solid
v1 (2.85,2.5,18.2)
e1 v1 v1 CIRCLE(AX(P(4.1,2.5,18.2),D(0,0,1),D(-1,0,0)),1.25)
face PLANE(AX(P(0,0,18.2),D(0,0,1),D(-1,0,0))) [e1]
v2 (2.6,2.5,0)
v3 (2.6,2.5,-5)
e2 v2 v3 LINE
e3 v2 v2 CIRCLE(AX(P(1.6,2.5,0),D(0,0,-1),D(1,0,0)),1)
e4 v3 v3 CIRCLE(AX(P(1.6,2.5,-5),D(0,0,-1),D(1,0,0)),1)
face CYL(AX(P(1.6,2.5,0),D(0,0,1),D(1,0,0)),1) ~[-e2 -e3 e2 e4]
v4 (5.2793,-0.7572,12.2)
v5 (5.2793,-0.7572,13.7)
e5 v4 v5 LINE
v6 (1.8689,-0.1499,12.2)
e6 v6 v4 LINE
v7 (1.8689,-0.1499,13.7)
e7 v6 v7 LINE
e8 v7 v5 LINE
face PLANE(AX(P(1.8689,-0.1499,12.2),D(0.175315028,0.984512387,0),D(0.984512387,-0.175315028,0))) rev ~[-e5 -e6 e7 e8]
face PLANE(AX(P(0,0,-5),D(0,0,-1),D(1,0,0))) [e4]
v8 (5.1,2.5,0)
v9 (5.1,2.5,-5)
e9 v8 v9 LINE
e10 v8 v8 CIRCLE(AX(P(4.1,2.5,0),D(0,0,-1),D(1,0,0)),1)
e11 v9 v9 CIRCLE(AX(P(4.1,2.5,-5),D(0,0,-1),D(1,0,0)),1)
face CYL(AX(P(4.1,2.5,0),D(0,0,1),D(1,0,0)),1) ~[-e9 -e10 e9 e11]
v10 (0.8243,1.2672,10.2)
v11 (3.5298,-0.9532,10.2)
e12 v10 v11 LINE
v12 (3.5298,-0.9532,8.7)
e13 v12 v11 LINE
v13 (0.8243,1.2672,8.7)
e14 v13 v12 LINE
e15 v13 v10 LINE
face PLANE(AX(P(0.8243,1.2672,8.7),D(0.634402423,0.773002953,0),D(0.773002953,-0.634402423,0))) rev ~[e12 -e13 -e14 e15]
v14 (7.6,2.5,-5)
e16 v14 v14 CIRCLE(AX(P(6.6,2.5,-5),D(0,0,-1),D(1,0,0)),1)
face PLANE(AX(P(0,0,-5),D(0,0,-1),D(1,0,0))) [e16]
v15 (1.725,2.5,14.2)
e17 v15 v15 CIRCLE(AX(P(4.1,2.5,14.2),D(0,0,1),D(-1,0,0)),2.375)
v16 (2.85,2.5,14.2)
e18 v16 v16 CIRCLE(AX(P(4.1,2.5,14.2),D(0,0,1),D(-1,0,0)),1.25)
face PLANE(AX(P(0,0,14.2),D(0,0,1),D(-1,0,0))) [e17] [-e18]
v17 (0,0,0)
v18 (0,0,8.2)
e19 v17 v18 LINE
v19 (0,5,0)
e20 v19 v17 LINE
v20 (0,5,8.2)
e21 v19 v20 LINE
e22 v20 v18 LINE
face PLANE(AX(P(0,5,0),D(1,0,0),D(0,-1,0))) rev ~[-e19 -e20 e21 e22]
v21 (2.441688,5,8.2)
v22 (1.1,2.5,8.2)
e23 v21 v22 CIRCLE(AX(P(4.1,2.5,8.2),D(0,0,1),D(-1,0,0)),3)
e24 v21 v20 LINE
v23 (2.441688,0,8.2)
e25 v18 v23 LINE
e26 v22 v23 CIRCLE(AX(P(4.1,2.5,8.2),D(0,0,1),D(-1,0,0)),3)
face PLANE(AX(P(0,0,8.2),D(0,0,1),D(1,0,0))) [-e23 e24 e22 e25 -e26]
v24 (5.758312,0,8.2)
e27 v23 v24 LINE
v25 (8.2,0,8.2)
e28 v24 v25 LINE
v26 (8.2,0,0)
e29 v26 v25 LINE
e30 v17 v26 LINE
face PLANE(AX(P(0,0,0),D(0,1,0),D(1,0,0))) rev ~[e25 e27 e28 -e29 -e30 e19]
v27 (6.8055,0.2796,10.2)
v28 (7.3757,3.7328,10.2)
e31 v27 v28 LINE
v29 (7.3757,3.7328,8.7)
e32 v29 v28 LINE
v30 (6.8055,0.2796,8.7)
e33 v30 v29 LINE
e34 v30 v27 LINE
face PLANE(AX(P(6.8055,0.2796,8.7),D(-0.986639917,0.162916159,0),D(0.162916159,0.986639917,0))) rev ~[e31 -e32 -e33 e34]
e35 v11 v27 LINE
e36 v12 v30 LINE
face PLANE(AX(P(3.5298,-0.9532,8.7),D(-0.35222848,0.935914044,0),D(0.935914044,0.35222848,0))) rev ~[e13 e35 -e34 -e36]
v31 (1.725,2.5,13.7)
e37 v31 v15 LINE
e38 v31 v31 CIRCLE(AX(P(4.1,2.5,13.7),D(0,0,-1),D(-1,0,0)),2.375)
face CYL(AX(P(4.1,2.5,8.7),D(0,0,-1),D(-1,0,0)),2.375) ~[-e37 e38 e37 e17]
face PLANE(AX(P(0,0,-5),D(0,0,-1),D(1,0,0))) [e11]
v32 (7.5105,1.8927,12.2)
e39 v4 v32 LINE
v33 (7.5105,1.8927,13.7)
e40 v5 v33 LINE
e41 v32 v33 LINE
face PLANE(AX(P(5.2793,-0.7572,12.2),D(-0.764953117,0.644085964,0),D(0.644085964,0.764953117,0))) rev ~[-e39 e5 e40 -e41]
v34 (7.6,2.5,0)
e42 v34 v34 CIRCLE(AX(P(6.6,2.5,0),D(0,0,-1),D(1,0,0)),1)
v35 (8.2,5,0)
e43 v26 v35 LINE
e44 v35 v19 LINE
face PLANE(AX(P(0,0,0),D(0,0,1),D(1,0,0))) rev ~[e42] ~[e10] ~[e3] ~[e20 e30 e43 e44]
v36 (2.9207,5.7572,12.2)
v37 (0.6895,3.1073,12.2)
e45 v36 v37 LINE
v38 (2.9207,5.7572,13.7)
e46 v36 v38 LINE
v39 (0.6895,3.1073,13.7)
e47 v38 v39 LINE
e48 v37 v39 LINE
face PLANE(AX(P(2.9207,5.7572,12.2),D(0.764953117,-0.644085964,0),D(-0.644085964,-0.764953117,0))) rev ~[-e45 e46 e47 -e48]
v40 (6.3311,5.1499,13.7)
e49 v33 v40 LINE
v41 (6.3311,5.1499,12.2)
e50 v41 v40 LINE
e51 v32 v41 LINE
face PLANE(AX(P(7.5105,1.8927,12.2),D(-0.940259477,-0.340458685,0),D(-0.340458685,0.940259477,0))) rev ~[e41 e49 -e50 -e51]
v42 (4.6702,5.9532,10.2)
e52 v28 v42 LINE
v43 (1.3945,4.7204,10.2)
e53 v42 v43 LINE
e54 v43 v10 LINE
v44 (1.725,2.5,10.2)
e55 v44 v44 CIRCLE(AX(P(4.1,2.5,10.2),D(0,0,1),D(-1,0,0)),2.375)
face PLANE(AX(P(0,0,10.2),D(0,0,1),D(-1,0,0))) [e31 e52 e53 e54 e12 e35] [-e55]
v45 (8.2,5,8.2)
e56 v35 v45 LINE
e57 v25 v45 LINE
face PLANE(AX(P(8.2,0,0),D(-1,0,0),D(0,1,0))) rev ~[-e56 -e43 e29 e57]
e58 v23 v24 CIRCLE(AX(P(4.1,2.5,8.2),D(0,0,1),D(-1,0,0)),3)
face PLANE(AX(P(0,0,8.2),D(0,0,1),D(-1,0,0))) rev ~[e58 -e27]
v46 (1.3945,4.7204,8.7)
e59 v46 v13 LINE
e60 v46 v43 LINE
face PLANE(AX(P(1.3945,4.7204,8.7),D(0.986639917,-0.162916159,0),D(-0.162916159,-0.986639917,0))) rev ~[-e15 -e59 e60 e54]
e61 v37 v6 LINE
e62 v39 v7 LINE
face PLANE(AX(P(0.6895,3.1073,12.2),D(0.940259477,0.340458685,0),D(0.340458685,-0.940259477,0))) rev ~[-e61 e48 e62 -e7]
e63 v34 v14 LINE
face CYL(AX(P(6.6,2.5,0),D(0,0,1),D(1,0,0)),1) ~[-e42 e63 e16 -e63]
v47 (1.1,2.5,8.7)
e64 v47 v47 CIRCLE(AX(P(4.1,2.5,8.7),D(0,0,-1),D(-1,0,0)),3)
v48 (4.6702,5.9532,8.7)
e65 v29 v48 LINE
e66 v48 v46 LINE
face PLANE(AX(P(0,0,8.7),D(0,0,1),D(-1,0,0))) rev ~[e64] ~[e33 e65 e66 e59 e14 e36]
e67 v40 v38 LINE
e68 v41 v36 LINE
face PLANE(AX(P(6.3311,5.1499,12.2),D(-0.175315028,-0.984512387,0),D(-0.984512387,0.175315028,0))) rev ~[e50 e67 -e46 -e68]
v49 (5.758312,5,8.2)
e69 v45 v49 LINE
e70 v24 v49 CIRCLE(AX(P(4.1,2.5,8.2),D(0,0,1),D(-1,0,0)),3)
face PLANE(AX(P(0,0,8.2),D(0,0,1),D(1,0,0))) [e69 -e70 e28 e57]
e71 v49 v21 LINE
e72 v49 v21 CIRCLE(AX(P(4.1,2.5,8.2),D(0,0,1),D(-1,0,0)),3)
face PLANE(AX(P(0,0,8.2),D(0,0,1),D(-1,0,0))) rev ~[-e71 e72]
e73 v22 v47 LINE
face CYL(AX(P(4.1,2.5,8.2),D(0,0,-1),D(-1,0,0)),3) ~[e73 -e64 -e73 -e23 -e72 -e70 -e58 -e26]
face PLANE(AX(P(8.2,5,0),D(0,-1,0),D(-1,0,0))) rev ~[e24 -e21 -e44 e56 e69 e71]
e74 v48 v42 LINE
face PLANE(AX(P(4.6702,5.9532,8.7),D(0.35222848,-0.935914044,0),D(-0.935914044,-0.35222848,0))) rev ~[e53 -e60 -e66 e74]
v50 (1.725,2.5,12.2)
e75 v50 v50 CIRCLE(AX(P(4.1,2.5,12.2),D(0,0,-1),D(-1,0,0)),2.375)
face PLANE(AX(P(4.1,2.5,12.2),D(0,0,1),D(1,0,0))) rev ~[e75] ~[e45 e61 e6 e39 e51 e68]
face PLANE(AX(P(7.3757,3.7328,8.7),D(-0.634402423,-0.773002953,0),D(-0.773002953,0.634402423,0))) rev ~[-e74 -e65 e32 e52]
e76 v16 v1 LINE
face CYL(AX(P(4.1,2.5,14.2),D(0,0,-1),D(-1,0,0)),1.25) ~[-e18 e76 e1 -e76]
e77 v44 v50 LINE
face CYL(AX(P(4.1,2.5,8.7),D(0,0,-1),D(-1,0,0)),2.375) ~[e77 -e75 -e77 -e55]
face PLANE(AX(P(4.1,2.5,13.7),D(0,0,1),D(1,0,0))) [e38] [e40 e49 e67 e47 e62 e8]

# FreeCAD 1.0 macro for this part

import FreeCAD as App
import Part
import Sketcher
Q = App.Units.Quantity

doc = App.newDocument("Part")
params = doc.addObject("Spreadsheet::Sheet", "Params")
for row, (alias, value) in enumerate([
    ("sketch1_height", "5 mm"),
    ("sketch1_width", "8.2 mm"),
    ("pad1_length", "8.2 mm"),
    ("sketch2_diameter", "6 mm"),
    ("pad2_length", "0.5 mm"),
    ("sketch3_diameter", "4.75 mm"),
    ("pad3_length", "5.5 mm"),
    ("sketch4_diameter", "2 mm"),
    ("pad4_length", "5 mm"),
    ("sketch5_length", "3.5 mm"),
    ("sketch5_diameter", "4.75 mm"),
    ("pad5_length", "1.5 mm"),
    ("sketch6_diameter", "2.5 mm"),
    ("pad6_length", "4 mm"),
    ("pad7_length", "1.5 mm"),
], start=1):
    params.set(f"A{row}", alias)
    params.set(f"B{row}", "=" + value)
    params.setAlias(f"B{row}", alias)

body = doc.addObject("PartDesign::Body", "Body")

# Sketch on XY plane
sketch1 = body.newObject("Sketcher::SketchObject", "Sketch")
sketch1.AttachmentSupport = (doc.getObject("XY_Plane"), [""])
sketch1.MapMode = "FlatFace"
sketch1.addGeometry(Part.LineSegment(App.Vector(0, 5, 0), App.Vector(0, 0, 0)), False)
sketch1.addGeometry(Part.LineSegment(App.Vector(0, 0, 0), App.Vector(8.2, 0, 0)), False)
sketch1.addGeometry(Part.LineSegment(App.Vector(8.2, 0, 0), App.Vector(8.2, 5, 0)), False)
sketch1.addGeometry(Part.LineSegment(App.Vector(8.2, 5, 0), App.Vector(0, 5, 0)), False)
sketch1.addConstraint(Sketcher.Constraint("Coincident", 0, 2, 1, 1))
sketch1.addConstraint(Sketcher.Constraint("Coincident", 1, 2, 2, 1))
sketch1.addConstraint(Sketcher.Constraint("Coincident", 2, 2, 3, 1))
sketch1.addConstraint(Sketcher.Constraint("Coincident", 3, 2, 0, 1))
sketch1.addConstraint(Sketcher.Constraint("Vertical", 0))
sketch1.addConstraint(Sketcher.Constraint("Horizontal", 1))
sketch1.addConstraint(Sketcher.Constraint("Vertical", 2))
sketch1.addConstraint(Sketcher.Constraint("Horizontal", 3))
sketch1.addConstraint(Sketcher.Constraint("Coincident", 0, 2, -1, 1))
sketch1.addConstraint(Sketcher.Constraint("DistanceY", 0, 2, 0, 1, Q("5 mm")))
sketch1.addConstraint(Sketcher.Constraint("DistanceX", 1, 1, 1, 2, Q("8.2 mm")))
sketch1.setExpression("Constraints[9]", "Params.sketch1_height")
sketch1.setExpression("Constraints[10]", "Params.sketch1_width")
pad1 = body.newObject("PartDesign::Pad", "Pad")
pad1.Profile = sketch1
pad1.setExpression("Length", "Params.pad1_length")

# Sketch on XY plane
sketch2 = body.newObject("Sketcher::SketchObject", "Sketch001")
sketch2.AttachmentSupport = (doc.getObject("XY_Plane"), [""])
sketch2.MapMode = "FlatFace"
sketch2.AttachmentOffset = App.Placement(App.Vector(0, 0, 8.2), App.Rotation())
sketch2.addGeometry(Part.Circle(App.Vector(4.1, 2.5, 0), App.Vector(0, 0, 1), 3), False)
sketch2.addConstraint(Sketcher.Constraint("Diameter", 0, Q("6 mm")))
sketch2.addConstraint(Sketcher.Constraint("DistanceX", -1, 1, 0, 3, Q("4.1 mm")))
sketch2.addConstraint(Sketcher.Constraint("DistanceY", -1, 1, 0, 3, Q("2.5 mm")))
sketch2.setExpression("Constraints[0]", "Params.sketch2_diameter")
pad2 = body.newObject("PartDesign::Pad", "Pad001")
pad2.Profile = sketch2
pad2.setExpression("Length", "Params.pad2_length")

# Sketch on XY plane
sketch3 = body.newObject("Sketcher::SketchObject", "Sketch002")
sketch3.AttachmentSupport = (doc.getObject("XY_Plane"), [""])
sketch3.MapMode = "FlatFace"
sketch3.AttachmentOffset = App.Placement(App.Vector(0, 0, 8.7), App.Rotation())
sketch3.addGeometry(Part.Circle(App.Vector(4.1, 2.5, 0), App.Vector(0, 0, 1), 2.375), False)
sketch3.addConstraint(Sketcher.Constraint("Diameter", 0, Q("4.75 mm")))
sketch3.addConstraint(Sketcher.Constraint("DistanceX", -1, 1, 0, 3, Q("4.1 mm")))
sketch3.addConstraint(Sketcher.Constraint("DistanceY", -1, 1, 0, 3, Q("2.5 mm")))
sketch3.setExpression("Constraints[0]", "Params.sketch3_diameter")
pad3 = body.newObject("PartDesign::Pad", "Pad002")
pad3.Profile = sketch3
pad3.setExpression("Length", "Params.pad3_length")

# Sketch on XY plane
sketch4 = body.newObject("Sketcher::SketchObject", "Sketch003")
sketch4.AttachmentSupport = (doc.getObject("XY_Plane"), [""])
sketch4.MapMode = "FlatFace"
sketch4.addGeometry(Part.Circle(App.Vector(4.1, 2.5, 0), App.Vector(0, 0, 1), 1), False)
sketch4.addGeometry(Part.Circle(App.Vector(6.6, 2.5, 0), App.Vector(0, 0, 1), 1), False)
sketch4.addGeometry(Part.Circle(App.Vector(1.6, 2.5, 0), App.Vector(0, 0, 1), 1), False)
sketch4.addConstraint(Sketcher.Constraint("Equal", 0, 1))
sketch4.addConstraint(Sketcher.Constraint("Equal", 1, 2))
sketch4.addConstraint(Sketcher.Constraint("Horizontal", 0, 3, 1, 3))
sketch4.addConstraint(Sketcher.Constraint("Horizontal", 1, 3, 2, 3))
sketch4.addConstraint(Sketcher.Constraint("Diameter", 0, Q("2 mm")))
sketch4.addConstraint(Sketcher.Constraint("DistanceX", -1, 1, 0, 3, Q("4.1 mm")))
sketch4.addConstraint(Sketcher.Constraint("DistanceY", -1, 1, 0, 3, Q("2.5 mm")))
sketch4.addConstraint(Sketcher.Constraint("DistanceX", 0, 3, 1, 3, Q("2.5 mm")))
sketch4.addConstraint(Sketcher.Constraint("DistanceX", 2, 3, 0, 3, Q("2.5 mm")))
sketch4.setExpression("Constraints[4]", "Params.sketch4_diameter")
pad4 = body.newObject("PartDesign::Pad", "Pad003")
pad4.Profile = sketch4
pad4.setExpression("Length", "Params.pad4_length")
pad4.Reversed = True

# Sketch on XY plane
sketch5 = body.newObject("Sketcher::SketchObject", "Sketch004")
sketch5.AttachmentSupport = (doc.getObject("XY_Plane"), [""])
sketch5.MapMode = "FlatFace"
sketch5.AttachmentOffset = App.Placement(App.Vector(0, 0, 8.7), App.Rotation())
sketch5.addGeometry(Part.LineSegment(App.Vector(6.8055, 0.2796, 0), App.Vector(7.3757, 3.7328, 0)), False)
sketch5.addGeometry(Part.LineSegment(App.Vector(7.3757, 3.7328, 0), App.Vector(4.6702, 5.9532, 0)), False)
sketch5.addGeometry(Part.LineSegment(App.Vector(4.6702, 5.9532, 0), App.Vector(1.3945, 4.7204, 0)), False)
sketch5.addGeometry(Part.LineSegment(App.Vector(1.3945, 4.7204, 0), App.Vector(0.8243, 1.2672, 0)), False)
sketch5.addGeometry(Part.LineSegment(App.Vector(0.8243, 1.2672, 0), App.Vector(3.5298, -0.9532, 0)), False)
sketch5.addGeometry(Part.LineSegment(App.Vector(3.5298, -0.9532, 0), App.Vector(6.8055, 0.2796, 0)), False)
sketch5.addGeometry(Part.Circle(App.Vector(4.1, 2.5, 0), App.Vector(0, 0, 1), 2.375), False)
sketch5.addConstraint(Sketcher.Constraint("Coincident", 0, 2, 1, 1))
sketch5.addConstraint(Sketcher.Constraint("Coincident", 1, 2, 2, 1))
sketch5.addConstraint(Sketcher.Constraint("Coincident", 2, 2, 3, 1))
sketch5.addConstraint(Sketcher.Constraint("Coincident", 3, 2, 4, 1))
sketch5.addConstraint(Sketcher.Constraint("Coincident", 4, 2, 5, 1))
sketch5.addConstraint(Sketcher.Constraint("Coincident", 5, 2, 0, 1))
sketch5.addConstraint(Sketcher.Constraint("Parallel", 0, 3))
sketch5.addConstraint(Sketcher.Constraint("Parallel", 1, 4))
sketch5.addConstraint(Sketcher.Constraint("Parallel", 2, 5))
sketch5.addConstraint(Sketcher.Constraint("Equal", 0, 1))
sketch5.addConstraint(Sketcher.Constraint("Equal", 1, 2))
sketch5.addConstraint(Sketcher.Constraint("Equal", 2, 3))
sketch5.addConstraint(Sketcher.Constraint("Distance", 0, Q("3.5 mm")))
sketch5.addConstraint(Sketcher.Constraint("Diameter", 6, Q("4.75 mm")))
sketch5.addConstraint(Sketcher.Constraint("DistanceX", -1, 1, 6, 3, Q("4.1 mm")))
sketch5.addConstraint(Sketcher.Constraint("DistanceY", -1, 1, 6, 3, Q("2.5 mm")))
sketch5.addConstraint(Sketcher.Constraint("DistanceX", 3, 2, 1, 2, Q("3.846 mm")))
sketch5.addConstraint(Sketcher.Constraint("DistanceY", 3, 2, 1, 2, Q("4.686 mm")))
sketch5.addConstraint(Sketcher.Constraint("DistanceX", -1, 1, 0, 2, Q("7.3757 mm")))
sketch5.addConstraint(Sketcher.Constraint("DistanceY", -1, 1, 0, 2, Q("3.7328 mm")))
sketch5.addConstraint(Sketcher.Constraint("DistanceX", -1, 1, 1, 2, Q("4.6702 mm")))
sketch5.setExpression("Constraints[12]", "Params.sketch5_length")
sketch5.setExpression("Constraints[13]", "Params.sketch5_diameter")
pad5 = body.newObject("PartDesign::Pad", "Pad004")
pad5.Profile = sketch5
pad5.setExpression("Length", "Params.pad5_length")

# Sketch on XY plane
sketch6 = body.newObject("Sketcher::SketchObject", "Sketch005")
sketch6.AttachmentSupport = (doc.getObject("XY_Plane"), [""])
sketch6.MapMode = "FlatFace"
sketch6.AttachmentOffset = App.Placement(App.Vector(0, 0, 14.2), App.Rotation())
sketch6.addGeometry(Part.Circle(App.Vector(4.1, 2.5, 0), App.Vector(0, 0, 1), 1.25), False)
sketch6.addConstraint(Sketcher.Constraint("Diameter", 0, Q("2.5 mm")))
sketch6.addConstraint(Sketcher.Constraint("DistanceY", -1, 1, 0, 3, Q("2.5 mm")))
sketch6.addConstraint(Sketcher.Constraint("DistanceX", -1, 1, 0, 3, Q("4.1 mm")))
sketch6.setExpression("Constraints[0]", "Params.sketch6_diameter")
pad6 = body.newObject("PartDesign::Pad", "Pad005")
pad6.Profile = sketch6
pad6.setExpression("Length", "Params.pad6_length")

# Sketch on XY plane
sketch7 = body.newObject("Sketcher::SketchObject", "Sketch006")
sketch7.AttachmentSupport = (doc.getObject("XY_Plane"), [""])
sketch7.MapMode = "FlatFace"
sketch7.AttachmentOffset = App.Placement(App.Vector(0, 0, 12.2), App.Rotation())
sketch7.addGeometry(Part.LineSegment(App.Vector(6.3311, 5.1499, 0), App.Vector(2.9207, 5.7572, 0)), False)
sketch7.addGeometry(Part.LineSegment(App.Vector(2.9207, 5.7572, 0), App.Vector(0.6895, 3.1073, 0)), False)
sketch7.addGeometry(Part.LineSegment(App.Vector(0.6895, 3.1073, 0), App.Vector(1.8689, -0.1499, 0)), False)
sketch7.addGeometry(Part.LineSegment(App.Vector(1.8689, -0.1499, 0), App.Vector(5.2793, -0.7572, 0)), False)
sketch7.addGeometry(Part.LineSegment(App.Vector(5.2793, -0.7572, 0), App.Vector(7.5105, 1.8927, 0)), False)
sketch7.addGeometry(Part.LineSegment(App.Vector(7.5105, 1.8927, 0), App.Vector(6.3311, 5.1499, 0)), False)
sketch7.addConstraint(Sketcher.Constraint("Coincident", 0, 2, 1, 1))
sketch7.addConstraint(Sketcher.Constraint("Coincident", 1, 2, 2, 1))
sketch7.addConstraint(Sketcher.Constraint("Coincident", 2, 2, 3, 1))
sketch7.addConstraint(Sketcher.Constraint("Coincident", 3, 2, 4, 1))
sketch7.addConstraint(Sketcher.Constraint("Coincident", 4, 2, 5, 1))
sketch7.addConstraint(Sketcher.Constraint("Coincident", 5, 2, 0, 1))
sketch7.addConstraint(Sketcher.Constraint("Parallel", 0, 3))
sketch7.addConstraint(Sketcher.Constraint("Parallel", 1, 4))
sketch7.addConstraint(Sketcher.Constraint("Parallel", 2, 5))
sketch7.addConstraint(Sketcher.Constraint("Equal", 0, 1))
sketch7.addConstraint(Sketcher.Constraint("Equal", 1, 2))
sketch7.addConstraint(Sketcher.Constraint("Equal", 2, 3))
sketch7.addConstraint(Sketcher.Constraint("DistanceY", 2, 2, -1, 1, Q("0.15 mm")))
sketch7.addConstraint(Sketcher.Constraint("DistanceY", -1, 1, 5, 2, Q("5.15 mm")))
sketch7.addConstraint(Sketcher.Constraint("DistanceY", 1, 2, 0, 2, Q("2.65 mm")))
sketch7.addConstraint(Sketcher.Constraint("Distance", 0, Q("3.464 mm")))
sketch7.addConstraint(Sketcher.Constraint("DistanceX", -1, 1, 2, 2, Q("1.869 mm")))
sketch7.addConstraint(Sketcher.Constraint("DistanceX", -1, 1, 5, 2, Q("6.331 mm")))
pad7 = body.newObject("PartDesign::Pad", "Pad006")
pad7.Profile = sketch7
pad7.setExpression("Length", "Params.pad7_length")

doc.recompute()
